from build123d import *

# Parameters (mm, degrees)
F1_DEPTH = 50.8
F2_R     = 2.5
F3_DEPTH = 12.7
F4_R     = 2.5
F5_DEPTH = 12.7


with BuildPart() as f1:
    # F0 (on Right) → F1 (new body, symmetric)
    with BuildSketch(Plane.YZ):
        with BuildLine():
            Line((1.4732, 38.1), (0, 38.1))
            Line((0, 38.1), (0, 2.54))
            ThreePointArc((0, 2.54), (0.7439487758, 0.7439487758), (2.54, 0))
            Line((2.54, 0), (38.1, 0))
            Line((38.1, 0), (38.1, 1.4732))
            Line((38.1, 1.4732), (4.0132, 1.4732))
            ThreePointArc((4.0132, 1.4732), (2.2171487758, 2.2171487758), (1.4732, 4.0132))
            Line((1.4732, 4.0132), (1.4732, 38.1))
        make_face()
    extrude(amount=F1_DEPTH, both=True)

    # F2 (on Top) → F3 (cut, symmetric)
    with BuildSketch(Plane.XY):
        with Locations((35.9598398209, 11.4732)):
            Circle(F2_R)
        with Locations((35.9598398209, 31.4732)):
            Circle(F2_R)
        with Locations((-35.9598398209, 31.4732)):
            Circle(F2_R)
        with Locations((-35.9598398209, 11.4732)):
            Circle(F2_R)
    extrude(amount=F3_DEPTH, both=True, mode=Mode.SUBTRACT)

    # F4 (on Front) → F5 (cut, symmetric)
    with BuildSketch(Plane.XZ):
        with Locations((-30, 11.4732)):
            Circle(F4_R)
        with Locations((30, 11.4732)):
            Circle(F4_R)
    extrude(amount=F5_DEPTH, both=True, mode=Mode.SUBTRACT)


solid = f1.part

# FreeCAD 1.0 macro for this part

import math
import FreeCAD as App
import Part
import Sketcher
Q = App.Units.Quantity

doc = App.newDocument("Part")
body = doc.addObject("PartDesign::Body", "Body")

# Sketch on YZ plane
sketch1 = doc.addObject("Sketcher::SketchObject", "Sketch")
body.addObject(sketch1)
sketch1.AttachmentSupport = (doc.YZ_Plane, [""])
sketch1.MapMode = "FlatFace"
sketch1.addGeometry(Part.LineSegment(App.Vector(1.5, 38.1, 0), App.Vector(0, 38.1, 0)), False)
sketch1.addGeometry(Part.LineSegment(App.Vector(0, 38.1, 0), App.Vector(0, 2.5, 0)), False)
sketch1.addGeometry(Part.ArcOfCircle(Part.Circle(App.Vector(2.5, 2.5, 0), App.Vector(0, 0, 1), 2.5), math.radians(180), math.radians(270)), False)
sketch1.addGeometry(Part.LineSegment(App.Vector(2.5, 0, 0), App.Vector(38.1, 0, 0)), False)
sketch1.addGeometry(Part.LineSegment(App.Vector(38.1, 0, 0), App.Vector(38.1, 1.5, 0)), False)
sketch1.addGeometry(Part.LineSegment(App.Vector(38.1, 1.5, 0), App.Vector(4, 1.5, 0)), False)
sketch1.addGeometry(Part.ArcOfCircle(Part.Circle(App.Vector(4, 4, 0), App.Vector(0, 0, 1), 2.5), math.radians(180), math.radians(270)), False)
sketch1.addGeometry(Part.LineSegment(App.Vector(1.5, 4, 0), App.Vector(1.5, 38.1, 0)), False)
sketch1.addConstraint(Sketcher.Constraint("Coincident", 0, 2, 1, 1))
sketch1.addConstraint(Sketcher.Constraint("Tangent", 1, 2, 2, 1))
sketch1.addConstraint(Sketcher.Constraint("Tangent", 2, 2, 3, 1))
sketch1.addConstraint(Sketcher.Constraint("Coincident", 3, 2, 4, 1))
sketch1.addConstraint(Sketcher.Constraint("Coincident", 4, 2, 5, 1))
sketch1.addConstraint(Sketcher.Constraint("Tangent", 5, 2, 6, 2))
sketch1.addConstraint(Sketcher.Constraint("Tangent", 6, 1, 7, 1))
sketch1.addConstraint(Sketcher.Constraint("Coincident", 7, 2, 0, 1))
sketch1.addConstraint(Sketcher.Constraint("Horizontal", 0))
sketch1.addConstraint(Sketcher.Constraint("Vertical", 1))
sketch1.addConstraint(Sketcher.Constraint("Horizontal", 3))
sketch1.addConstraint(Sketcher.Constraint("Vertical", 4))
sketch1.addConstraint(Sketcher.Constraint("Horizontal", 5))
sketch1.addConstraint(Sketcher.Constraint("Vertical", 7))
sketch1.addConstraint(Sketcher.Constraint("Equal", 2, 6))
sketch1.addConstraint(Sketcher.Constraint("PointOnObject", 0, 2, -2))
sketch1.addConstraint(Sketcher.Constraint("PointOnObject", 2, 2, -1))
sketch1.addConstraint(Sketcher.Constraint("Equal", 3, 1))
sketch1.addConstraint(Sketcher.Constraint("Equal", 0, 4))
sketch1.addConstraint(Sketcher.Constraint("Radius", 2, Q("0.1 in")))
sketch1.addConstraint(Sketcher.Constraint("DistanceX", 3, 1, 3, 2, Q("1.4 in")))
sketch1.addConstraint(Sketcher.Constraint("DistanceX", 0, 2, 0, 1, Q("0.058 in")))
pad1 = doc.addObject("PartDesign::Pad", "Pad")
body.addObject(pad1)
pad1.Profile = sketch1
pad1.Length = Q("4 in")
pad1.Midplane = True

# Sketch on XY plane
sketch2 = doc.addObject("Sketcher::SketchObject", "Sketch001")
body.addObject(sketch2)
sketch2.AttachmentSupport = (doc.XY_Plane, [""])
sketch2.MapMode = "FlatFace"
sketch2.addGeometry(Part.Circle(App.Vector(36, 11.5, 0), App.Vector(0, 0, 1), 2.5), False)
sketch2.addGeometry(Part.Circle(App.Vector(36, 31.5, 0), App.Vector(0, 0, 1), 2.5), False)
sketch2.addGeometry(Part.Circle(App.Vector(-36, 31.5, 0), App.Vector(0, 0, 1), 2.5), False)
sketch2.addGeometry(Part.Circle(App.Vector(-36, 11.5, 0), App.Vector(0, 0, 1), 2.5), False)
sketch2.addConstraint(Sketcher.Constraint("Equal", 0, 1))
sketch2.addConstraint(Sketcher.Constraint("Equal", 1, 2))
sketch2.addConstraint(Sketcher.Constraint("Equal", 2, 3))
sketch2.addConstraint(Sketcher.Constraint("Symmetric", 1, 3, 2, 3, -2))
sketch2.addConstraint(Sketcher.Constraint("Symmetric", 0, 3, 3, 3, -2))
sketch2.addConstraint(Sketcher.Constraint("Vertical", 0, 3, 1, 3))
sketch2.addConstraint(Sketcher.Constraint("Diameter", 0, 5.0))
sketch2.addConstraint(Sketcher.Constraint("DistanceY", -1, 1, 0, 3, 11.4732))
sketch2.addConstraint(Sketcher.Constraint("DistanceY", -1, 1, 1, 3, 31.4732))
sketch2.addConstraint(Sketcher.Constraint("DistanceX", -1, 1, 0, 3, 35.95984))
pocket1 = doc.addObject("PartDesign::Pocket", "Pocket")
body.addObject(pocket1)
pocket1.Profile = sketch2
pocket1.Length = Q("1 in")
pocket1.Midplane = True

# Sketch on XZ plane
sketch3 = doc.addObject("Sketcher::SketchObject", "Sketch002")
body.addObject(sketch3)
sketch3.AttachmentSupport = (doc.XZ_Plane, [""])
sketch3.MapMode = "FlatFace"
sketch3.addGeometry(Part.Circle(App.Vector(-30, 11.5, 0), App.Vector(0, 0, 1), 2.5), False)
sketch3.addGeometry(Part.Circle(App.Vector(30, 11.5, 0), App.Vector(0, 0, 1), 2.5), False)
sketch3.addConstraint(Sketcher.Constraint("Equal", 0, 1))
sketch3.addConstraint(Sketcher.Constraint("Symmetric", 0, 3, 1, 3, -2))
sketch3.addConstraint(Sketcher.Constraint("Diameter", 0, 5.0))
sketch3.addConstraint(Sketcher.Constraint("DistanceX", 0, 3, -1, 1, 30.0))
sketch3.addConstraint(Sketcher.Constraint("DistanceY", -1, 1, 0, 3, 11.4732))
pocket2 = doc.addObject("PartDesign::Pocket", "Pocket001")
body.addObject(pocket2)
pocket2.Profile = sketch3
pocket2.Length = Q("1 in")
pocket2.Midplane = True

doc.recompute()
